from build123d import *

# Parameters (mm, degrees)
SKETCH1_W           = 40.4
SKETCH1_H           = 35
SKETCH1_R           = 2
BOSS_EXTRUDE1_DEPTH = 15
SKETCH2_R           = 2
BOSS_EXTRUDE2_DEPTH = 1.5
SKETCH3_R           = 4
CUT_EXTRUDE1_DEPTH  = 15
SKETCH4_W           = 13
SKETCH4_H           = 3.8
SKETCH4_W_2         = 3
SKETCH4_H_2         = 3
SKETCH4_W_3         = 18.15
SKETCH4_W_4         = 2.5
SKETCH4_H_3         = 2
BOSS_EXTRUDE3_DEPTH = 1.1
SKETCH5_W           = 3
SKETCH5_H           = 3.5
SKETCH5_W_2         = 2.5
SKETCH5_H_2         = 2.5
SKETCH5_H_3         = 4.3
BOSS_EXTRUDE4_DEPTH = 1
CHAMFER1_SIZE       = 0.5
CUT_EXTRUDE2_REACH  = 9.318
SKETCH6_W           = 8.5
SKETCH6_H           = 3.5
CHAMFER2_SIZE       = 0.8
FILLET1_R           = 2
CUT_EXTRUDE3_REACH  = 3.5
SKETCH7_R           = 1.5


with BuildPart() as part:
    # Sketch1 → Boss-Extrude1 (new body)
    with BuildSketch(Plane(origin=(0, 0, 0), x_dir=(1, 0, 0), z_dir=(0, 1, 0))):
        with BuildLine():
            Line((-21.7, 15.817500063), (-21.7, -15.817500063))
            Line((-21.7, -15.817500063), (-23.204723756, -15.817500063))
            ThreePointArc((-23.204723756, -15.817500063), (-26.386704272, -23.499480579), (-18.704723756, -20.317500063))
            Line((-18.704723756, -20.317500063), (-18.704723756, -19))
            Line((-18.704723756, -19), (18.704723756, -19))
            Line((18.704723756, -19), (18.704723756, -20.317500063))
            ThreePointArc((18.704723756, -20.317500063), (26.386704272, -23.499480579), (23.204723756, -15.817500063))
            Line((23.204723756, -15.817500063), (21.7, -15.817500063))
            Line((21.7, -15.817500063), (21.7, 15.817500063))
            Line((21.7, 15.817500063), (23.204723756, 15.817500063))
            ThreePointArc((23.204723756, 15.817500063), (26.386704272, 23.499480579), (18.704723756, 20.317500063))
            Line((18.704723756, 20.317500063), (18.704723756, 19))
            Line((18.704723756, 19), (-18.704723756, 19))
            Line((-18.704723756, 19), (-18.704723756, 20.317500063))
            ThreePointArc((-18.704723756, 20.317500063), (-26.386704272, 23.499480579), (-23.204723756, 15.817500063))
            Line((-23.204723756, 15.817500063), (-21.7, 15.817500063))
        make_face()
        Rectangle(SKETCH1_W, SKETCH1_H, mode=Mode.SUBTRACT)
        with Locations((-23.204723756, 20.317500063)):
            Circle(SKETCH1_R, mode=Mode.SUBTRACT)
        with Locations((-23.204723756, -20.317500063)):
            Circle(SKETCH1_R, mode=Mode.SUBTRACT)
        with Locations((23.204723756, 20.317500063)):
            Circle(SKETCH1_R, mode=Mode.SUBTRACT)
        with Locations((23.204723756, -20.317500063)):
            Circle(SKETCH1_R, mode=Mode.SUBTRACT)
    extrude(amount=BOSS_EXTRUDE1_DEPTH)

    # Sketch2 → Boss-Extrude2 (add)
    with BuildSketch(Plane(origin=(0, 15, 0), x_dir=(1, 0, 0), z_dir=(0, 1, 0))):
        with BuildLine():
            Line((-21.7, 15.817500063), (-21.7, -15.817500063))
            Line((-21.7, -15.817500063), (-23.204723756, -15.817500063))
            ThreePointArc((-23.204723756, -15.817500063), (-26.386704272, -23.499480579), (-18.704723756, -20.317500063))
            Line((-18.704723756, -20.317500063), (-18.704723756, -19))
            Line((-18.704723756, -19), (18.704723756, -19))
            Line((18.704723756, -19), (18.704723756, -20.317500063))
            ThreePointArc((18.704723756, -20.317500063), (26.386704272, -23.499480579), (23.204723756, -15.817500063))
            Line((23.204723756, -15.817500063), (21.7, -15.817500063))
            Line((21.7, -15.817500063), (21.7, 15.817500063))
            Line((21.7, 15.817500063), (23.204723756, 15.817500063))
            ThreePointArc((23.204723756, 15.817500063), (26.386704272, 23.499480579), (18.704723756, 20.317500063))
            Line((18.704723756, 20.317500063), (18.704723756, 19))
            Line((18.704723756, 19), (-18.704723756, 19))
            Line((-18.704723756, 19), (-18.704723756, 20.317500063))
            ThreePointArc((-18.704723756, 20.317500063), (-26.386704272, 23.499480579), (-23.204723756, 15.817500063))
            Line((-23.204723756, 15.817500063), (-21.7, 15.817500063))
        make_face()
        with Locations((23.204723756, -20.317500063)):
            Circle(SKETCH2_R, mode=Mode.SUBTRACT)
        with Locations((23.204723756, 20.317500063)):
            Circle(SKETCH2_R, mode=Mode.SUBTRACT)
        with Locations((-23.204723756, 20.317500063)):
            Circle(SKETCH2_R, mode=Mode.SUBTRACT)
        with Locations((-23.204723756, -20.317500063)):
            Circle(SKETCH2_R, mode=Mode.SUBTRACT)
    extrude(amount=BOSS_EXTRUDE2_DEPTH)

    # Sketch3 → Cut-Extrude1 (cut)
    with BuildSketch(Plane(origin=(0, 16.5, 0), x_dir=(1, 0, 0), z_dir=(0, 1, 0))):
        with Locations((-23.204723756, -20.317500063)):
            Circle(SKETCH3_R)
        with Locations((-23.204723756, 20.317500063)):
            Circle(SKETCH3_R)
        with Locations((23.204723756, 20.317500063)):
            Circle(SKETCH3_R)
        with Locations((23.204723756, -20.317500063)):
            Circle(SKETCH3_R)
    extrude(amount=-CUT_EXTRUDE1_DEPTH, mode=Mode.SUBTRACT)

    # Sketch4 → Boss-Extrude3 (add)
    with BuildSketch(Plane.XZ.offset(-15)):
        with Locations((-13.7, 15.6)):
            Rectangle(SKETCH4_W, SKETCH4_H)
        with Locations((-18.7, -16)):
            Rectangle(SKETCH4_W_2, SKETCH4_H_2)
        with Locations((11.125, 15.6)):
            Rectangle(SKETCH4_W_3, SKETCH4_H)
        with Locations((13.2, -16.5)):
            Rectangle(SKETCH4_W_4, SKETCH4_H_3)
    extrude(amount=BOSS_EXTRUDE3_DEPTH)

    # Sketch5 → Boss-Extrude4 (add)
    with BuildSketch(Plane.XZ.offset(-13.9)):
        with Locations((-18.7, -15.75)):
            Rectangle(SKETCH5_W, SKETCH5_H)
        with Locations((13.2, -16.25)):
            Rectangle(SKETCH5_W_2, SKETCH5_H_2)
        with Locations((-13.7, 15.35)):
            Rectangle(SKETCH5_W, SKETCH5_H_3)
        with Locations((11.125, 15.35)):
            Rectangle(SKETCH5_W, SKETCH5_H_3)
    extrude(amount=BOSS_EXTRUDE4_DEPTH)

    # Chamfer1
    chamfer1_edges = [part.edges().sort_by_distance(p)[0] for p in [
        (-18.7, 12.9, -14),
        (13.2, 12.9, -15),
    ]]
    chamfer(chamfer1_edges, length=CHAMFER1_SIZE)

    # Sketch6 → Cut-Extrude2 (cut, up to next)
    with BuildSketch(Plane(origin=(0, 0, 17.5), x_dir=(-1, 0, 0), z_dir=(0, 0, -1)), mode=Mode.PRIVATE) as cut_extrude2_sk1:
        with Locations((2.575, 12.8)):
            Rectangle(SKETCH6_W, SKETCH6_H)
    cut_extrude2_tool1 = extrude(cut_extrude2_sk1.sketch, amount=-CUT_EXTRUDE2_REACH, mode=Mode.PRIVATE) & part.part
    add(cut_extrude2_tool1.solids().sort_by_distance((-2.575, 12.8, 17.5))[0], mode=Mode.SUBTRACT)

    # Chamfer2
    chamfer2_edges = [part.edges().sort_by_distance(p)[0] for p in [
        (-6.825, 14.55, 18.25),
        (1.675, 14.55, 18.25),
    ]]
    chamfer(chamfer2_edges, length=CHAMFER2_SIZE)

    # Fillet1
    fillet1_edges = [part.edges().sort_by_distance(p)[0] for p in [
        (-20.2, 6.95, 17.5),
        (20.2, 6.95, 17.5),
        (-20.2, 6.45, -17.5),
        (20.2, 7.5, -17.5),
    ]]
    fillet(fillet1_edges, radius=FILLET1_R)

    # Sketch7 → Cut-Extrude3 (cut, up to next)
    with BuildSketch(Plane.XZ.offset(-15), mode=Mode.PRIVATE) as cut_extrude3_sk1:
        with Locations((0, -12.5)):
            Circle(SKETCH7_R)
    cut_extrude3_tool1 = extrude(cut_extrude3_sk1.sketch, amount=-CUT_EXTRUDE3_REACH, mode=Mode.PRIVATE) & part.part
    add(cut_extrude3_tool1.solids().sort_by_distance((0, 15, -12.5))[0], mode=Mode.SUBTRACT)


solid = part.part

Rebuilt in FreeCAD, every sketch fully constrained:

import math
import FreeCAD as App
import Part
import Sketcher

V = App.Vector
Q = App.Units.Quantity


def edges_at(feature, points):
    """Names of the edges that pass closest to the given points."""
    edges = feature.Shape.Edges
    near = lambda p: min(range(len(edges)), key=lambda i: edges[i].distToShape(Part.Vertex(*p))[0])
    return sorted({f"Edge{near(p) + 1}" for p in points})


def add_polygon(sketch, points):
    """Adds a closed chain of lines whose ends are joined by coincident constraints."""
    first, n = sketch.GeometryCount, len(points)
    for a, b in zip(points, points[1:] + points[:1]):
        sketch.addGeometry(Part.LineSegment(App.Vector(*a, 0), App.Vector(*b, 0)), False)
    for i in range(n):
        sketch.addConstraint(Sketcher.Constraint("Coincident", first + i, 2, first + (i + 1) % n, 1))

doc = App.newDocument("Part")
params = doc.addObject("Spreadsheet::Sheet", "Params")
for row, (alias, value) in enumerate([
    ("sketch1_diameter", "4 mm"),
    ("sketch1_radius", "4.5 mm"),
    ("sketch1_height", "35 mm"),
    ("sketch1_width", "40.4 mm"),
    ("pad1_length", "15 mm"),
    ("sketch2_diameter", "4 mm"),
    ("sketch2_radius", "4.5 mm"),
    ("pad2_length", "1.5 mm"),
    ("sketch3_diameter", "8 mm"),
    ("pocket1_length", "15 mm"),
    ("sketch4_width", "13 mm"),
    ("sketch4_width2", "3 mm"),
    ("sketch4_height", "2 mm"),
    ("sketch4_width3", "2.5 mm"),
    ("sketch4_height2", "3.8 mm"),
    ("pad3_length", "1.1 mm"),
    ("sketch5_width", "3 mm"),
    ("sketch5_width2", "2.5 mm"),
    ("sketch5_height", "3.5 mm"),
    ("sketch5_height2", "4.3 mm"),
    ("pad4_length", "1 mm"),
    ("chamfer_size", "0.5 mm"),
    ("sketch6_width", "8.5 mm"),
    ("sketch6_height", "3.5 mm"),
    ("chamfer2_size", "0.8 mm"),
    ("fillet_radius", "2 mm"),
    ("sketch7_diameter", "3 mm"),
], start=1):
    params.set(f"A{row}", alias)
    params.set(f"B{row}", "=" + value)
    params.setAlias(f"B{row}", alias)

body = doc.addObject("PartDesign::Body", "Body")

# Sketch on XZ plane
sketch1 = body.newObject("Sketcher::SketchObject", "Sketch")
sketch1.AttachmentSupport = (doc.getObject("XZ_Plane"), [""])
sketch1.MapMode = "FlatFace"
sketch1.addGeometry(Part.LineSegment(V(-21.7, -15.8175, 0), V(-21.7, 15.8175, 0)), False)  # 0
sketch1.addGeometry(Part.LineSegment(V(-21.7, 15.8175, 0), V(-23.204724, 15.8175, 0)), False)  # 1
sketch1.addGeometry(Part.ArcOfCircle(Part.Circle(V(-23.204724, 20.3175, 0), V(0, 0, 1), 4.5), math.radians(0), math.radians(270)), False)  # 2
sketch1.addGeometry(Part.LineSegment(V(-18.704724, 20.3175, 0), V(-18.704724, 19, 0)), False)  # 3
sketch1.addGeometry(Part.LineSegment(V(-18.704724, 19, 0), V(18.704724, 19, 0)), False)  # 4
sketch1.addGeometry(Part.LineSegment(V(18.704724, 19, 0), V(18.704724, 20.3175, 0)), False)  # 5
sketch1.addGeometry(Part.ArcOfCircle(Part.Circle(V(23.204724, 20.3175, 0), V(0, 0, 1), 4.5), math.radians(-90), math.radians(180)), False)  # 6
sketch1.addGeometry(Part.LineSegment(V(23.204724, 15.8175, 0), V(21.7, 15.8175, 0)), False)  # 7
sketch1.addGeometry(Part.LineSegment(V(21.7, 15.8175, 0), V(21.7, -15.8175, 0)), False)  # 8
sketch1.addGeometry(Part.LineSegment(V(21.7, -15.8175, 0), V(23.204724, -15.8175, 0)), False)  # 9
sketch1.addGeometry(Part.ArcOfCircle(Part.Circle(V(23.204724, -20.3175, 0), V(0, 0, 1), 4.5), math.radians(180), math.radians(450)), False)  # 10
sketch1.addGeometry(Part.LineSegment(V(18.704724, -20.3175, 0), V(18.704724, -19, 0)), False)  # 11
sketch1.addGeometry(Part.LineSegment(V(18.704724, -19, 0), V(-18.704724, -19, 0)), False)  # 12
sketch1.addGeometry(Part.LineSegment(V(-18.704724, -19, 0), V(-18.704724, -20.3175, 0)), False)  # 13
sketch1.addGeometry(Part.ArcOfCircle(Part.Circle(V(-23.204724, -20.3175, 0), V(0, 0, 1), 4.5), math.radians(90), math.radians(360)), False)  # 14
sketch1.addGeometry(Part.LineSegment(V(-23.204724, -15.8175, 0), V(-21.7, -15.8175, 0)), False)  # 15
sketch1.addGeometry(Part.Circle(V(-23.204724, 20.3175, 0), V(0, 0, 1), 2), False)  # 16
sketch1.addGeometry(Part.Circle(V(23.204724, 20.3175, 0), V(0, 0, 1), 2), False)  # 17
add_polygon(sketch1, [(20.2, 17.5), (-20.2, 17.5), (-20.2, -17.5), (20.2, -17.5)])  # lines 18-21
sketch1.addGeometry(Part.Circle(V(-23.204724, -20.3175, 0), V(0, 0, 1), 2), False)  # 22
sketch1.addGeometry(Part.Circle(V(23.204724, -20.3175, 0), V(0, 0, 1), 2), False)  # 23
sketch1.addConstraint([
    Sketcher.Constraint("Coincident", 0, 2, 1, 1),
    Sketcher.Constraint("Tangent", 1, 2, 2, 2),
    Sketcher.Constraint("Tangent", 2, 1, 3, 1),
    Sketcher.Constraint("Coincident", 3, 2, 4, 1),
    Sketcher.Constraint("Coincident", 4, 2, 5, 1),
    Sketcher.Constraint("Tangent", 5, 2, 6, 2),
    Sketcher.Constraint("Tangent", 6, 1, 7, 1),
    Sketcher.Constraint("Coincident", 7, 2, 8, 1),
    Sketcher.Constraint("Coincident", 8, 2, 9, 1),
    Sketcher.Constraint("Tangent", 9, 2, 10, 2),
    Sketcher.Constraint("Tangent", 10, 1, 11, 1),
    Sketcher.Constraint("Coincident", 11, 2, 12, 1),
    Sketcher.Constraint("Coincident", 12, 2, 13, 1),
    Sketcher.Constraint("Tangent", 13, 2, 14, 2),
    Sketcher.Constraint("Tangent", 14, 1, 15, 1),
    Sketcher.Constraint("Coincident", 15, 2, 0, 1),
    Sketcher.Constraint("Vertical", 0),
    Sketcher.Constraint("Horizontal", 1),
    Sketcher.Constraint("Vertical", 3),
    Sketcher.Constraint("Horizontal", 4),
    Sketcher.Constraint("Vertical", 5),
    Sketcher.Constraint("Horizontal", 7),
    Sketcher.Constraint("Vertical", 8),
    Sketcher.Constraint("Horizontal", 9),
    Sketcher.Constraint("Vertical", 11),
    Sketcher.Constraint("Horizontal", 12),
    Sketcher.Constraint("Vertical", 13),
    Sketcher.Constraint("Horizontal", 15),
    Sketcher.Constraint("Horizontal", 18),
    Sketcher.Constraint("Vertical", 19),
    Sketcher.Constraint("Horizontal", 20),
    Sketcher.Constraint("Vertical", 21),
    Sketcher.Constraint("Coincident", 16, 3, 2, 3),
    Sketcher.Constraint("Coincident", 17, 3, 6, 3),
    Sketcher.Constraint("Coincident", 22, 3, 14, 3),
    Sketcher.Constraint("Coincident", 23, 3, 10, 3),
    Sketcher.Constraint("Equal", 2, 6),
    Sketcher.Constraint("Equal", 6, 10),
    Sketcher.Constraint("Equal", 10, 14),
    Sketcher.Constraint("Equal", 16, 17),
    Sketcher.Constraint("Equal", 17, 22),
    Sketcher.Constraint("Equal", 22, 23),
    Sketcher.Constraint("Symmetric", 2, 3, 10, 3, -1, 1),
    Sketcher.Constraint("Symmetric", 6, 3, 14, 3, -1, 1),
    Sketcher.Constraint("Symmetric", 18, 2, 20, 2, -1, 1),
    Sketcher.Constraint("Symmetric", 2, 3, 6, 3, -2),
    Sketcher.Constraint("Equal", 1, 7),
    Sketcher.Constraint("Equal", 5, 11),
    Sketcher.Constraint("Diameter", 16, Q("4 mm")),
    Sketcher.Constraint("Radius", 2, Q("4.5 mm")),
    Sketcher.Constraint("DistanceY", 19, 2, 19, 1, Q("35 mm")),
    Sketcher.Constraint("DistanceX", 18, 2, 18, 1, Q("40.4 mm")),
    Sketcher.Constraint("DistanceY", -1, 1, 3, 2, Q("19 mm")),
    Sketcher.Constraint("DistanceX", 0, 2, -1, 1, Q("21.7 mm")),
    Sketcher.Constraint("DistanceY", 0, 1, 0, 2, Q("31.635 mm")),
    Sketcher.Constraint("DistanceX", 1, 2, 1, 1, Q("1.504724 mm")),
])
sketch1.setExpression("Constraints[52]", "Params.sketch1_diameter")
sketch1.setExpression("Constraints[53]", "Params.sketch1_radius")
sketch1.setExpression("Constraints[54]", "Params.sketch1_height")
sketch1.setExpression("Constraints[55]", "Params.sketch1_width")
pad1 = body.newObject("PartDesign::Pad", "Pad")
pad1.Profile = sketch1
pad1.setExpression("Length", "Params.pad1_length")
pad1.Reversed = True

# Sketch on XZ plane
sketch2 = body.newObject("Sketcher::SketchObject", "Sketch001")
sketch2.AttachmentSupport = (doc.getObject("XZ_Plane"), [""])
sketch2.MapMode = "FlatFace"
sketch2.AttachmentOffset = App.Placement(V(0, 0, -15), App.Rotation())
sketch2.addGeometry([
    Part.LineSegment(V(-21.7, -15.8175, 0), V(-21.7, 15.8175, 0)),  # 0
    Part.LineSegment(V(-21.7, 15.8175, 0), V(-23.204724, 15.8175, 0)),  # 1
    Part.ArcOfCircle(Part.Circle(V(-23.204724, 20.3175, 0), V(0, 0, 1), 4.5), math.radians(0), math.radians(270)),  # 2
    Part.LineSegment(V(-18.704724, 20.3175, 0), V(-18.704724, 19, 0)),  # 3
    Part.LineSegment(V(-18.704724, 19, 0), V(18.704724, 19, 0)),  # 4
    Part.LineSegment(V(18.704724, 19, 0), V(18.704724, 20.3175, 0)),  # 5
    Part.ArcOfCircle(Part.Circle(V(23.204724, 20.3175, 0), V(0, 0, 1), 4.5), math.radians(-90), math.radians(180)),  # 6
    Part.LineSegment(V(23.204724, 15.8175, 0), V(21.7, 15.8175, 0)),  # 7
    Part.LineSegment(V(21.7, 15.8175, 0), V(21.7, -15.8175, 0)),  # 8
    Part.LineSegment(V(21.7, -15.8175, 0), V(23.204724, -15.8175, 0)),  # 9
    Part.ArcOfCircle(Part.Circle(V(23.204724, -20.3175, 0), V(0, 0, 1), 4.5), math.radians(180), math.radians(450)),  # 10
    Part.LineSegment(V(18.704724, -20.3175, 0), V(18.704724, -19, 0)),  # 11
    Part.LineSegment(V(18.704724, -19, 0), V(-18.704724, -19, 0)),  # 12
    Part.LineSegment(V(-18.704724, -19, 0), V(-18.704724, -20.3175, 0)),  # 13
    Part.ArcOfCircle(Part.Circle(V(-23.204724, -20.3175, 0), V(0, 0, 1), 4.5), math.radians(90), math.radians(360)),  # 14
    Part.LineSegment(V(-23.204724, -15.8175, 0), V(-21.7, -15.8175, 0)),  # 15
    Part.Circle(V(-23.204724, 20.3175, 0), V(0, 0, 1), 2),  # 16
    Part.Circle(V(23.204724, 20.3175, 0), V(0, 0, 1), 2),  # 17
    Part.Circle(V(-23.204724, -20.3175, 0), V(0, 0, 1), 2),  # 18
    Part.Circle(V(23.204724, -20.3175, 0), V(0, 0, 1), 2),  # 19
], False)
sketch2.addConstraint([
    Sketcher.Constraint("Coincident", 0, 2, 1, 1),
    Sketcher.Constraint("Tangent", 1, 2, 2, 2),
    Sketcher.Constraint("Tangent", 2, 1, 3, 1),
    Sketcher.Constraint("Coincident", 3, 2, 4, 1),
    Sketcher.Constraint("Coincident", 4, 2, 5, 1),
    Sketcher.Constraint("Tangent", 5, 2, 6, 2),
    Sketcher.Constraint("Tangent", 6, 1, 7, 1),
    Sketcher.Constraint("Coincident", 7, 2, 8, 1),
    Sketcher.Constraint("Coincident", 8, 2, 9, 1),
    Sketcher.Constraint("Tangent", 9, 2, 10, 2),
    Sketcher.Constraint("Tangent", 10, 1, 11, 1),
    Sketcher.Constraint("Coincident", 11, 2, 12, 1),
    Sketcher.Constraint("Coincident", 12, 2, 13, 1),
    Sketcher.Constraint("Tangent", 13, 2, 14, 2),
    Sketcher.Constraint("Tangent", 14, 1, 15, 1),
    Sketcher.Constraint("Coincident", 15, 2, 0, 1),
    Sketcher.Constraint("Vertical", 0),
    Sketcher.Constraint("Horizontal", 1),
    Sketcher.Constraint("Vertical", 3),
    Sketcher.Constraint("Horizontal", 4),
    Sketcher.Constraint("Vertical", 5),
    Sketcher.Constraint("Horizontal", 7),
    Sketcher.Constraint("Vertical", 8),
    Sketcher.Constraint("Horizontal", 9),
    Sketcher.Constraint("Vertical", 11),
    Sketcher.Constraint("Horizontal", 12),
    Sketcher.Constraint("Vertical", 13),
    Sketcher.Constraint("Horizontal", 15),
    Sketcher.Constraint("Coincident", 16, 3, 2, 3),
    Sketcher.Constraint("Coincident", 17, 3, 6, 3),
    Sketcher.Constraint("Coincident", 18, 3, 14, 3),
    Sketcher.Constraint("Coincident", 19, 3, 10, 3),
    Sketcher.Constraint("Equal", 2, 6),
    Sketcher.Constraint("Equal", 6, 10),
    Sketcher.Constraint("Equal", 10, 14),
    Sketcher.Constraint("Equal", 16, 17),
    Sketcher.Constraint("Equal", 17, 18),
    Sketcher.Constraint("Equal", 18, 19),
    Sketcher.Constraint("Symmetric", 2, 3, 10, 3, -1, 1),
    Sketcher.Constraint("Symmetric", 6, 3, 14, 3, -1, 1),
    Sketcher.Constraint("Symmetric", 2, 3, 6, 3, -2),
    Sketcher.Constraint("Equal", 1, 7),
    Sketcher.Constraint("Equal", 5, 11),
    Sketcher.Constraint("Diameter", 16, Q("4 mm")),
    Sketcher.Constraint("Radius", 2, Q("4.5 mm")),
    Sketcher.Constraint("DistanceY", -1, 1, 3, 2, Q("19 mm")),
    Sketcher.Constraint("DistanceX", 0, 2, -1, 1, Q("21.7 mm")),
    Sketcher.Constraint("DistanceY", 0, 1, 0, 2, Q("31.635 mm")),
    Sketcher.Constraint("DistanceX", 1, 2, 1, 1, Q("1.504724 mm")),
])
sketch2.setExpression("Constraints[43]", "Params.sketch2_diameter")
sketch2.setExpression("Constraints[44]", "Params.sketch2_radius")
pad2 = body.newObject("PartDesign::Pad", "Pad001")
pad2.Profile = sketch2
pad2.setExpression("Length", "Params.pad2_length")
pad2.Reversed = True

# Sketch on XZ plane
sketch3 = body.newObject("Sketcher::SketchObject", "Sketch002")
sketch3.AttachmentSupport = (doc.getObject("XZ_Plane"), [""])
sketch3.MapMode = "FlatFace"
sketch3.AttachmentOffset = App.Placement(V(0, 0, -16.5), App.Rotation())
sketch3.addGeometry([
    Part.Circle(V(-23.204724, 20.3175, 0), V(0, 0, 1), 4),
    Part.Circle(V(-23.204724, -20.3175, 0), V(0, 0, 1), 4),
    Part.Circle(V(23.204724, -20.3175, 0), V(0, 0, 1), 4),
    Part.Circle(V(23.204724, 20.3175, 0), V(0, 0, 1), 4),
], False)
sketch3.addConstraint([
    Sketcher.Constraint("Equal", 0, 1),
    Sketcher.Constraint("Equal", 1, 2),
    Sketcher.Constraint("Equal", 2, 3),
    Sketcher.Constraint("Symmetric", 0, 3, 2, 3, -1, 1),
    Sketcher.Constraint("Symmetric", 1, 3, 3, 3, -1, 1),
    Sketcher.Constraint("Symmetric", 1, 3, 2, 3, -2),
    Sketcher.Constraint("Diameter", 0, Q("8 mm")),
    Sketcher.Constraint("DistanceY", 1, 3, 0, 3, Q("40.635 mm")),
    Sketcher.Constraint("DistanceX", 0, 3, -1, 1, Q("23.204724 mm")),
])
sketch3.setExpression("Constraints[6]", "Params.sketch3_diameter")
pocket1 = body.newObject("PartDesign::Pocket", "Pocket")
pocket1.Profile = sketch3
pocket1.setExpression("Length", "Params.pocket1_length")
pocket1.Reversed = True

# Sketch on XZ plane
sketch4 = body.newObject("Sketcher::SketchObject", "Sketch003")
sketch4.AttachmentSupport = (doc.getObject("XZ_Plane"), [""])
sketch4.MapMode = "FlatFace"
sketch4.AttachmentOffset = App.Placement(V(0, 0, -15), App.Rotation())
add_polygon(sketch4, [(-20.2, 17.5), (-20.2, 13.7), (-7.2, 13.7), (-7.2, 17.5)])  # lines 0-3
add_polygon(sketch4, [(-20.2, -14.5), (-20.2, -17.5), (-17.2, -17.5), (-17.2, -14.5)])  # lines 4-7
add_polygon(sketch4, [(2.05, 17.5), (2.05, 13.7), (20.2, 13.7), (20.2, 17.5)])  # lines 8-11
add_polygon(sketch4, [(11.95, -15.5), (11.95, -17.5), (14.45, -17.5), (14.45, -15.5)])  # lines 12-15
sketch4.addConstraint([
    Sketcher.Constraint("Vertical", 0),
    Sketcher.Constraint("Horizontal", 1),
    Sketcher.Constraint("Vertical", 2),
    Sketcher.Constraint("Horizontal", 3),
    Sketcher.Constraint("Vertical", 4),
    Sketcher.Constraint("Horizontal", 5),
    Sketcher.Constraint("Vertical", 6),
    Sketcher.Constraint("Horizontal", 7),
    Sketcher.Constraint("Vertical", 8),
    Sketcher.Constraint("Horizontal", 9),
    Sketcher.Constraint("Vertical", 10),
    Sketcher.Constraint("Horizontal", 11),
    Sketcher.Constraint("Vertical", 12),
    Sketcher.Constraint("Horizontal", 13),
    Sketcher.Constraint("Vertical", 14),
    Sketcher.Constraint("Horizontal", 15),
    Sketcher.Constraint("Symmetric", 4, 2, 10, 2, -1, 1),
    Sketcher.Constraint("Symmetric", 0, 2, 9, 2, -2),
    Sketcher.Constraint("Horizontal", 3, 2, 10, 2),
    Sketcher.Constraint("Horizontal", 5, 2, 12, 2),
    Sketcher.Constraint("Equal", 7, 4),
    Sketcher.Constraint("DistanceX", 1, 1, 1, 2, Q("13 mm")),
    Sketcher.Constraint("DistanceX", 5, 1, 5, 2, Q("3 mm")),
    Sketcher.Constraint("DistanceY", 12, 2, 12, 1, Q("2 mm")),
    Sketcher.Constraint("DistanceX", 13, 1, 13, 2, Q("2.5 mm")),
    Sketcher.Constraint("DistanceY", 0, 2, 0, 1, Q("3.8 mm")),
    Sketcher.Constraint("DistanceY", 4, 2, 3, 2, Q("35 mm")),
    Sketcher.Constraint("DistanceX", 9, 1, 9, 2, Q("18.15 mm")),
    Sketcher.Constraint("DistanceX", 0, 2, -1, 1, Q("20.2 mm")),
    Sketcher.Constraint("DistanceX", 8, 2, 13, 2, Q("12.4 mm")),
])
sketch4.setExpression("Constraints[37]", "Params.sketch4_width")
sketch4.setExpression("Constraints[38]", "Params.sketch4_width2")
sketch4.setExpression("Constraints[39]", "Params.sketch4_height")
sketch4.setExpression("Constraints[40]", "Params.sketch4_width3")
sketch4.setExpression("Constraints[41]", "Params.sketch4_height2")
pad3 = body.newObject("PartDesign::Pad", "Pad002")
pad3.Profile = sketch4
pad3.setExpression("Length", "Params.pad3_length")

# Sketch on XZ plane
sketch5 = body.newObject("Sketcher::SketchObject", "Sketch004")
sketch5.AttachmentSupport = (doc.getObject("XZ_Plane"), [""])
sketch5.MapMode = "FlatFace"
sketch5.AttachmentOffset = App.Placement(V(0, 0, -13.9), App.Rotation())
add_polygon(sketch5, [(-20.2, -14), (-20.2, -17.5), (-17.2, -17.5), (-17.2, -14)])  # lines 0-3
add_polygon(sketch5, [(11.95, -15), (11.95, -17.5), (14.45, -17.5), (14.45, -15)])  # lines 4-7
add_polygon(sketch5, [(-15.2, 17.5), (-15.2, 13.2), (-12.2, 13.2), (-12.2, 17.5)])  # lines 8-11
add_polygon(sketch5, [(9.625, 17.5), (9.625, 13.2), (12.625, 13.2), (12.625, 17.5)])  # lines 12-15
sketch5.addConstraint([
    Sketcher.Constraint("Vertical", 0),
    Sketcher.Constraint("Horizontal", 1),
    Sketcher.Constraint("Vertical", 2),
    Sketcher.Constraint("Horizontal", 3),
    Sketcher.Constraint("Vertical", 4),
    Sketcher.Constraint("Horizontal", 5),
    Sketcher.Constraint("Vertical", 6),
    Sketcher.Constraint("Horizontal", 7),
    Sketcher.Constraint("Vertical", 8),
    Sketcher.Constraint("Horizontal", 9),
    Sketcher.Constraint("Vertical", 10),
    Sketcher.Constraint("Horizontal", 11),
    Sketcher.Constraint("Vertical", 12),
    Sketcher.Constraint("Horizontal", 13),
    Sketcher.Constraint("Vertical", 14),
    Sketcher.Constraint("Horizontal", 15),
    Sketcher.Constraint("Horizontal", 1, 2, 4, 2),
    Sketcher.Constraint("Horizontal", 9, 2, 12, 2),
    Sketcher.Constraint("Horizontal", 11, 2, 14, 2),
    Sketcher.Constraint("Equal", 3, 9),
    Sketcher.Constraint("Equal", 11, 13),
    Sketcher.Constraint("Equal", 7, 4),
    Sketcher.Constraint("DistanceX", 1, 1, 1, 2, Q("3 mm")),
    Sketcher.Constraint("DistanceX", 5, 1, 5, 2, Q("2.5 mm")),
    Sketcher.Constraint("DistanceY", 0, 2, 0, 1, Q("3.5 mm")),
    Sketcher.Constraint("DistanceY", 8, 2, 8, 1, Q("4.3 mm")),
    Sketcher.Constraint("DistanceY", 2, 2, -1, 1, Q("14 mm")),
    Sketcher.Constraint("DistanceX", 2, 2, 8, 2, Q("2 mm")),
    Sketcher.Constraint("DistanceY", 1, 2, 10, 2, Q("35 mm")),
    Sketcher.Constraint("DistanceX", 0, 2, -1, 1, Q("20.2 mm")),
    Sketcher.Constraint("DistanceX", -1, 1, 4, 2, Q("11.95 mm")),
    Sketcher.Constraint("DistanceX", -1, 1, 12, 2, Q("9.625 mm")),
])
sketch5.setExpression("Constraints[38]", "Params.sketch5_width")
sketch5.setExpression("Constraints[39]", "Params.sketch5_width2")
sketch5.setExpression("Constraints[40]", "Params.sketch5_height")
sketch5.setExpression("Constraints[41]", "Params.sketch5_height2")
pad4 = body.newObject("PartDesign::Pad", "Pad003")
pad4.Profile = sketch5
pad4.setExpression("Length", "Params.pad4_length")
doc.recompute()

chamfer = body.newObject("PartDesign::Chamfer", "Chamfer")
chamfer.Base = (pad4, edges_at(pad4, [(-18.7, 12.9, -14), (13.2, 12.9, -15)]))
chamfer.setExpression("Size", "Params.chamfer_size")

# Sketch on XY plane
sketch6 = body.newObject("Sketcher::SketchObject", "Sketch005")
sketch6.AttachmentSupport = (doc.getObject("XY_Plane"), [""])
sketch6.MapMode = "FlatFace"
sketch6.AttachmentOffset = App.Placement(V(0, 0, 17.5), App.Rotation())
add_polygon(sketch6, [(1.675, 14.55), (1.675, 11.05), (-6.825, 11.05), (-6.825, 14.55)])  # lines 0-3
sketch6.addConstraint([
    Sketcher.Constraint("Vertical", 0),
    Sketcher.Constraint("Horizontal", 1),
    Sketcher.Constraint("Vertical", 2),
    Sketcher.Constraint("Horizontal", 3),
    Sketcher.Constraint("DistanceX", 1, 2, 1, 1, Q("8.5 mm")),
    Sketcher.Constraint("DistanceY", 0, 2, 0, 1, Q("3.5 mm")),
    Sketcher.Constraint("DistanceY", -1, 1, 0, 2, Q("11.05 mm")),
    Sketcher.Constraint("DistanceX", -1, 1, 0, 2, Q("1.675 mm")),
])
sketch6.setExpression("Constraints[8]", "Params.sketch6_width")
sketch6.setExpression("Constraints[9]", "Params.sketch6_height")
pocket2 = body.newObject("PartDesign::Pocket", "Pocket001")
pocket2.Profile = sketch6
pocket2.Type = "UpToFirst"
pocket2.Reversed = True
doc.recompute()

chamfer2 = body.newObject("PartDesign::Chamfer", "Chamfer001")
chamfer2.Base = (pocket2, edges_at(pocket2, [(-6.825, 14.55, 18.25), (1.675, 14.55, 18.25)]))
chamfer2.setExpression("Size", "Params.chamfer2_size")
doc.recompute()

fillet = body.newObject("PartDesign::Fillet", "Fillet")
fillet.Base = (chamfer2, edges_at(chamfer2, [
    (-20.2, 6.95, 17.5),
    (20.2, 6.95, 17.5),
    (-20.2, 6.45, -17.5),
    (20.2, 7.5, -17.5),
]))
fillet.setExpression("Radius", "Params.fillet_radius")

# Sketch on XZ plane
sketch7 = body.newObject("Sketcher::SketchObject", "Sketch006")
sketch7.AttachmentSupport = (doc.getObject("XZ_Plane"), [""])
sketch7.MapMode = "FlatFace"
sketch7.AttachmentOffset = App.Placement(V(0, 0, -15), App.Rotation())
sketch7.addGeometry(Part.Circle(V(0, -12.5, 0), V(0, 0, 1), 1.5), False)
sketch7.addConstraint([
    Sketcher.Constraint("PointOnObject", 0, 3, -2),
    Sketcher.Constraint("Diameter", 0, Q("3 mm")),
    Sketcher.Constraint("DistanceY", 0, 3, -1, 1, Q("12.5 mm")),
])
sketch7.setExpression("Constraints[1]", "Params.sketch7_diameter")
pocket3 = body.newObject("PartDesign::Pocket", "Pocket002")
pocket3.Profile = sketch7
pocket3.Type = "UpToFirst"

doc.recompute()
